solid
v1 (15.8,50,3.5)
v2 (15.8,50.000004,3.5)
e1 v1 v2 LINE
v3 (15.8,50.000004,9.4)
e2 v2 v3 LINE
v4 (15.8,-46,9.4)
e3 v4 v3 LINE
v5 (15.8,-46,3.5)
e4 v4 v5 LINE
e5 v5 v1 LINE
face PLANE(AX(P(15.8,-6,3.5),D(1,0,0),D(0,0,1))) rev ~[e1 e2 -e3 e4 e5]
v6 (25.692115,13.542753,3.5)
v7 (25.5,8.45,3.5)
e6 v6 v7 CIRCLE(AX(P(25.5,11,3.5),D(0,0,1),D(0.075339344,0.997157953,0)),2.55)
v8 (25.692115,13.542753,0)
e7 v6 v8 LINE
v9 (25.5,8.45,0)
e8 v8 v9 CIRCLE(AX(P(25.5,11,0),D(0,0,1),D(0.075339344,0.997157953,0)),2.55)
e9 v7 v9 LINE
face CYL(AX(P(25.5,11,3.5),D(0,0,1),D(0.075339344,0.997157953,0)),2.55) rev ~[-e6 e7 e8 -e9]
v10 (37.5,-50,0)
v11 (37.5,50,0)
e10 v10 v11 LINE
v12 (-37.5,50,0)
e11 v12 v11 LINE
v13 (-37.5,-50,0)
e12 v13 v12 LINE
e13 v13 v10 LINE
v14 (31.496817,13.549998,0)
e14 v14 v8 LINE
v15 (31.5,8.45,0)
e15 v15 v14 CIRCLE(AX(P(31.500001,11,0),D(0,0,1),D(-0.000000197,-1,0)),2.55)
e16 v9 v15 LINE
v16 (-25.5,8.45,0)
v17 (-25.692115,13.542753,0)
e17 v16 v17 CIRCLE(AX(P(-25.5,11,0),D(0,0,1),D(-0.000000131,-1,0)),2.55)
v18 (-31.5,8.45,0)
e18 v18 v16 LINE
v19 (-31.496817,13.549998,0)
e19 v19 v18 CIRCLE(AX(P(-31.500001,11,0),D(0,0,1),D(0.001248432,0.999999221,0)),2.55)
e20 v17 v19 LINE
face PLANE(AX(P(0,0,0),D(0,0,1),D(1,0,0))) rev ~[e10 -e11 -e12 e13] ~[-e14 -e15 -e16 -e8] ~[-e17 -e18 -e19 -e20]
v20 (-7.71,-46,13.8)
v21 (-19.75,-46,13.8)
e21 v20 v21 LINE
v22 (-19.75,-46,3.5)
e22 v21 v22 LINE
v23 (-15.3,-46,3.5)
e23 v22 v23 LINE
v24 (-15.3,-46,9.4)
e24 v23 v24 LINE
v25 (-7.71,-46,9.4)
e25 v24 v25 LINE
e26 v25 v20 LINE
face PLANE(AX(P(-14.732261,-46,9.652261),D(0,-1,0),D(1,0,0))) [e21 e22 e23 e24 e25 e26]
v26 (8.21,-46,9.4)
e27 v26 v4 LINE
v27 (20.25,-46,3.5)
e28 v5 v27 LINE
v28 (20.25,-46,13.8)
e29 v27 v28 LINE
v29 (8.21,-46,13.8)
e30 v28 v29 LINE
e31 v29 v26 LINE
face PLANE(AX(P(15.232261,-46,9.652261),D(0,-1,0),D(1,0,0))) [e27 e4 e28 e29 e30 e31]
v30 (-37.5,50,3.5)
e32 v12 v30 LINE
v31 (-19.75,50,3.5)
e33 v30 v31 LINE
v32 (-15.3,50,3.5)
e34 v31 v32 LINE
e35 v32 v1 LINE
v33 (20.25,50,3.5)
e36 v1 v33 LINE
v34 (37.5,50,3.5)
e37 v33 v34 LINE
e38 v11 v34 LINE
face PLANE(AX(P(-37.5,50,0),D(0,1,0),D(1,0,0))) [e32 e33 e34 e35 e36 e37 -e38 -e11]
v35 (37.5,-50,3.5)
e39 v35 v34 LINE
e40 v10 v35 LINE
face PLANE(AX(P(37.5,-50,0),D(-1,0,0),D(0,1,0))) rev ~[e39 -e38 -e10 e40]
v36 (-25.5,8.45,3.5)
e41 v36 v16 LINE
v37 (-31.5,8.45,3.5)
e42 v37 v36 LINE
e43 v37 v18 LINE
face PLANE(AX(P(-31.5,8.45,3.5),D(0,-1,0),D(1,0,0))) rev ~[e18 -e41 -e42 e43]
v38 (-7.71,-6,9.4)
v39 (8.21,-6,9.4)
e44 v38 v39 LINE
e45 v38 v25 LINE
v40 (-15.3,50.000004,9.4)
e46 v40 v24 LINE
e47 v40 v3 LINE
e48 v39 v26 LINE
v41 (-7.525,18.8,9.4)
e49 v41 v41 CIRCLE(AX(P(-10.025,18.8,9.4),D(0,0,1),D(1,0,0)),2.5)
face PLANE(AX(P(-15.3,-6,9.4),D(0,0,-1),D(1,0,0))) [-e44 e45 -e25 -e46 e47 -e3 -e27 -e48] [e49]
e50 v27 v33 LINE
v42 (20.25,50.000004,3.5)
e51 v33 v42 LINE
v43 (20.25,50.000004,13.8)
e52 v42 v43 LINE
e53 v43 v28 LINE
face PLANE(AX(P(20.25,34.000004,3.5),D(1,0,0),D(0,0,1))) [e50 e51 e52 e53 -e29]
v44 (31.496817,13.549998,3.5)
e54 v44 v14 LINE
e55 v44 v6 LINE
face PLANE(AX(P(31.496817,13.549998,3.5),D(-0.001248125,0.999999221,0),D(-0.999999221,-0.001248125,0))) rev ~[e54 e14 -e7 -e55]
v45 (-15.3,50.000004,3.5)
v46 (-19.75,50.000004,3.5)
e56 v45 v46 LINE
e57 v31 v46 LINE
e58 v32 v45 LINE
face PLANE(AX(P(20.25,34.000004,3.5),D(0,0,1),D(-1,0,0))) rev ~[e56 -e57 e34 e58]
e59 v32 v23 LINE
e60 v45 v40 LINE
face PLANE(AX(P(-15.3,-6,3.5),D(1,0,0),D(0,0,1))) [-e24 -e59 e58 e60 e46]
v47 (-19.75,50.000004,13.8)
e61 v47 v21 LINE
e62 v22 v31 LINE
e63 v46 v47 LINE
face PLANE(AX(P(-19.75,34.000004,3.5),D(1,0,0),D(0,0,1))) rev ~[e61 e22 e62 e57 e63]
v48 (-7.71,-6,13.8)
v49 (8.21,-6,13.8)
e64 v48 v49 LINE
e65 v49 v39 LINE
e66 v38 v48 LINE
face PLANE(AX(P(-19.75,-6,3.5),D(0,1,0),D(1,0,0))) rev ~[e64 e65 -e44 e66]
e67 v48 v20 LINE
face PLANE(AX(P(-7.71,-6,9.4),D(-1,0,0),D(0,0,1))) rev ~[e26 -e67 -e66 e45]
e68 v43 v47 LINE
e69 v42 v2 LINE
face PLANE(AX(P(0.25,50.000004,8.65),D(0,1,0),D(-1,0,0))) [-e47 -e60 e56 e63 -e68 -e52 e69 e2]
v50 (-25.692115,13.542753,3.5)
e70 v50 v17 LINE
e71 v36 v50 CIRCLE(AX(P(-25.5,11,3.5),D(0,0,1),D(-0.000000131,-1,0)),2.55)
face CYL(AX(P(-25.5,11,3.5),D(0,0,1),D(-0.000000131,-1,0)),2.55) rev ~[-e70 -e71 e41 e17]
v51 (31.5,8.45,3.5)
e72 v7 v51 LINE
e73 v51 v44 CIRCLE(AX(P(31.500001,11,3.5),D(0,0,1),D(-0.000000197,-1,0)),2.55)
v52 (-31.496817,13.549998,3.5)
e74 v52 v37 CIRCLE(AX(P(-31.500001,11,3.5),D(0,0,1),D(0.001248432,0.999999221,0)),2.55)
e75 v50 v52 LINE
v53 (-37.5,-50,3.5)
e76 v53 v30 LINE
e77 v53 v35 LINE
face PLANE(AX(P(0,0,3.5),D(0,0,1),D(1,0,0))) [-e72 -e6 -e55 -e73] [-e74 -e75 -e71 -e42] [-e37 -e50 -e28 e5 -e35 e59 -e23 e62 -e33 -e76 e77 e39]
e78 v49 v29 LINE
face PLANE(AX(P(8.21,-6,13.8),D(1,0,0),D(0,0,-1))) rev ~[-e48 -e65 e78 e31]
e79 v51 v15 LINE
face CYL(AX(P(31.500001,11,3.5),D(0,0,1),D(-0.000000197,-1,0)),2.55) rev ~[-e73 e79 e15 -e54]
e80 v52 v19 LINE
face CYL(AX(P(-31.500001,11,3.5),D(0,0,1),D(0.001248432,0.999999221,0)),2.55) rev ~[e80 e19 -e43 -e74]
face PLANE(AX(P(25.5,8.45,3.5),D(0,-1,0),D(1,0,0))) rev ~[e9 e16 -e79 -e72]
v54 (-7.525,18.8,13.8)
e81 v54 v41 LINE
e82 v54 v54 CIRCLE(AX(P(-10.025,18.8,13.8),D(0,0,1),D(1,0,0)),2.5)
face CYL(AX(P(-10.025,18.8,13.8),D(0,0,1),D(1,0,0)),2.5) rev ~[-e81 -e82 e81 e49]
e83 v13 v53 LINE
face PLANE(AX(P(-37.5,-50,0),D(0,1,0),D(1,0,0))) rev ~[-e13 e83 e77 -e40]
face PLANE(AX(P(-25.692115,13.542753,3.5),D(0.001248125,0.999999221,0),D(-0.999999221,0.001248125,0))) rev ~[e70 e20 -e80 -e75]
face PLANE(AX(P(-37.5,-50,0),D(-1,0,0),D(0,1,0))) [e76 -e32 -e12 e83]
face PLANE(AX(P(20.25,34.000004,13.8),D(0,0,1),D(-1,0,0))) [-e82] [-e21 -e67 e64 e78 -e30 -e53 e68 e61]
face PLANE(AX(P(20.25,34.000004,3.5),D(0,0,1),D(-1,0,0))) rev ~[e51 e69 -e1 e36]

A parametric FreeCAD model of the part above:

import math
import FreeCAD as App
import Part
import Sketcher

doc = App.newDocument("Part")
body = doc.addObject("PartDesign::Body", "Body")

sketch1 = body.newObject("Sketcher::SketchObject", "Sketch")
sketch1.AttachmentSupport = (doc.getObject("XY_Plane"), [""])
sketch1.MapMode = "FlatFace"
sketch1.addGeometry([
    Part.LineSegment(App.Vector(-38, 50, 0), App.Vector(-38, -50, 0)),
    Part.LineSegment(App.Vector(-38, -50, 0), App.Vector(38, -50, 0)),
    Part.LineSegment(App.Vector(38, -50, 0), App.Vector(38, 50, 0)),
    Part.LineSegment(App.Vector(38, 50, 0), App.Vector(-38, 50, 0)),
], False)
sketch1.addConstraint([
    Sketcher.Constraint("Coincident", 0, 2, 1, 1),
    Sketcher.Constraint("Coincident", 1, 2, 2, 1),
    Sketcher.Constraint("Coincident", 2, 2, 3, 1),
    Sketcher.Constraint("Coincident", 3, 2, 0, 1),
    Sketcher.Constraint("Vertical", 0),
    Sketcher.Constraint("Horizontal", 1),
    Sketcher.Constraint("Vertical", 2),
    Sketcher.Constraint("Horizontal", 3),
    Sketcher.Constraint("Symmetric", 0, 2, 2, 2, -1, 1),
    Sketcher.Constraint("DistanceX", 1, 1, 1, 2, 75.0),
    Sketcher.Constraint("DistanceY", 0, 2, 0, 1, 100.0),
])
pad1 = body.newObject("PartDesign::Pad", "Pad")
pad1.Profile = sketch1
pad1.Length = 3.5

sketch2 = body.newObject("Sketcher::SketchObject", "Sketch001")
sketch2.AttachmentSupport = (doc.getObject("XY_Plane"), [""])
sketch2.MapMode = "FlatFace"
sketch2.AttachmentOffset = App.Placement(App.Vector(0, 0, 3.5), App.Rotation())
sketch2.addGeometry([
    Part.LineSegment(App.Vector(25.5, 8.4, 0), App.Vector(31.5, 8.4, 0)),
    Part.ArcOfCircle(Part.Circle(App.Vector(31.5, 11, 0), App.Vector(0, 0, 1), 2.5), math.radians(-90), math.radians(90)),
    Part.LineSegment(App.Vector(31.5, 13.5, 0), App.Vector(25.7, 13.5, 0)),
    Part.ArcOfCircle(Part.Circle(App.Vector(25.5, 11, 0), App.Vector(0, 0, 1), 2.6), math.radians(86), math.radians(270)),
    Part.ArcOfCircle(Part.Circle(App.Vector(-25.5, 11, 0), App.Vector(0, 0, 1), 2.6), math.radians(-90), math.radians(94)),
    Part.LineSegment(App.Vector(-25.7, 13.5, 0), App.Vector(-31.5, 13.5, 0)),
    Part.ArcOfCircle(Part.Circle(App.Vector(-31.5, 11, 0), App.Vector(0, 0, 1), 2.5), math.radians(90), math.radians(270)),
    Part.LineSegment(App.Vector(-31.5, 8.4, 0), App.Vector(-25.5, 8.4, 0)),
], False)
sketch2.addConstraint([
    Sketcher.Constraint("Tangent", 0, 2, 1, 1),
    Sketcher.Constraint("Tangent", 1, 2, 2, 1),
    Sketcher.Constraint("Coincident", 2, 2, 3, 1),
    Sketcher.Constraint("Tangent", 3, 2, 0, 1),
    Sketcher.Constraint("Coincident", 4, 2, 5, 1),
    Sketcher.Constraint("Tangent", 5, 2, 6, 1),
    Sketcher.Constraint("Tangent", 6, 2, 7, 1),
    Sketcher.Constraint("Tangent", 7, 2, 4, 1),
    Sketcher.Constraint("Horizontal", 0),
    Sketcher.Constraint("Horizontal", 7),
    Sketcher.Constraint("Equal", 1, 3),
    Sketcher.Constraint("Equal", 3, 4),
    Sketcher.Constraint("Equal", 4, 6),
    Sketcher.Constraint("Symmetric", 3, 3, 4, 3, -2),
    Sketcher.Constraint("Horizontal", 2, 2, 4, 2),
    Sketcher.Constraint("Equal", 0, 7),
    Sketcher.Constraint("DistanceX", 0, 1, 0, 2, 6.0),
    Sketcher.Constraint("Radius", 1, 2.55),
    Sketcher.Constraint("DistanceY", -1, 1, 1, 3, 11.0),
    Sketcher.Constraint("DistanceX", 4, 3, 3, 3, 50.999999),
    Sketcher.Constraint("DistanceX", 2, 2, 1, 2, 5.804702),
])
pocket1 = body.newObject("PartDesign::Pocket", "Pocket")
pocket1.Profile = sketch2
pocket1.Type = "ThroughAll"

sketch3 = body.newObject("Sketcher::SketchObject", "Sketch002")
sketch3.AttachmentSupport = (doc.getObject("XY_Plane"), [""])
sketch3.MapMode = "FlatFace"
sketch3.AttachmentOffset = App.Placement(App.Vector(0, 0, 3.5), App.Rotation())
sketch3.addGeometry([
    Part.LineSegment(App.Vector(-20, 34, 0), App.Vector(-20, -6, 0)),
    Part.LineSegment(App.Vector(-20, -6, 0), App.Vector(20, -6, 0)),
    Part.LineSegment(App.Vector(20, -6, 0), App.Vector(20, 34, 0)),
    Part.LineSegment(App.Vector(20, 34, 0), App.Vector(-20, 34, 0)),
], False)
sketch3.addConstraint([
    Sketcher.Constraint("Coincident", 0, 2, 1, 1),
    Sketcher.Constraint("Coincident", 1, 2, 2, 1),
    Sketcher.Constraint("Coincident", 2, 2, 3, 1),
    Sketcher.Constraint("Coincident", 3, 2, 0, 1),
    Sketcher.Constraint("Vertical", 0),
    Sketcher.Constraint("Horizontal", 1),
    Sketcher.Constraint("Vertical", 2),
    Sketcher.Constraint("Horizontal", 3),
    Sketcher.Constraint("DistanceX", 1, 1, 1, 2, 40.0),
    Sketcher.Constraint("DistanceY", 0, 2, -1, 1, 6.0),
    Sketcher.Constraint("DistanceX", 0, 2, -1, 1, 19.75),
    Sketcher.Constraint("DistanceY", 0, 2, 0, 1, 40.000004),
])
pad2 = body.newObject("PartDesign::Pad", "Pad001")
pad2.Profile = sketch3
pad2.Length = 10.3

sketch4 = body.newObject("Sketcher::SketchObject", "Sketch003")
sketch4.AttachmentSupport = (doc.getObject("XZ_Plane"), [""])
sketch4.MapMode = "FlatFace"
sketch4.AttachmentOffset = App.Placement(App.Vector(0, 0, 6), App.Rotation())
sketch4.addGeometry([
    Part.LineSegment(App.Vector(-7.7, 13.8, 0), App.Vector(-19.8, 13.8, 0)),
    Part.LineSegment(App.Vector(-19.8, 13.8, 0), App.Vector(-19.8, 3.5, 0)),
    Part.LineSegment(App.Vector(-19.8, 3.5, 0), App.Vector(-15.3, 3.5, 0)),
    Part.LineSegment(App.Vector(-15.3, 3.5, 0), App.Vector(-15.3, 9.4, 0)),
    Part.LineSegment(App.Vector(-15.3, 9.4, 0), App.Vector(-7.7, 9.4, 0)),
    Part.LineSegment(App.Vector(-7.7, 9.4, 0), App.Vector(-7.7, 13.8, 0)),
    Part.LineSegment(App.Vector(20.2, 3.5, 0), App.Vector(20.2, 13.8, 0)),
    Part.LineSegment(App.Vector(20.2, 13.8, 0), App.Vector(8.2, 13.8, 0)),
    Part.LineSegment(App.Vector(8.2, 13.8, 0), App.Vector(8.2, 9.4, 0)),
    Part.LineSegment(App.Vector(8.2, 9.4, 0), App.Vector(15.8, 9.4, 0)),
    Part.LineSegment(App.Vector(15.8, 9.4, 0), App.Vector(15.8, 3.5, 0)),
    Part.LineSegment(App.Vector(15.8, 3.5, 0), App.Vector(20.2, 3.5, 0)),
], False)
sketch4.addConstraint([
    Sketcher.Constraint("Coincident", 0, 2, 1, 1),
    Sketcher.Constraint("Coincident", 1, 2, 2, 1),
    Sketcher.Constraint("Coincident", 2, 2, 3, 1),
    Sketcher.Constraint("Coincident", 3, 2, 4, 1),
    Sketcher.Constraint("Coincident", 4, 2, 5, 1),
    Sketcher.Constraint("Coincident", 5, 2, 0, 1),
    Sketcher.Constraint("Coincident", 6, 2, 7, 1),
    Sketcher.Constraint("Coincident", 7, 2, 8, 1),
    Sketcher.Constraint("Coincident", 8, 2, 9, 1),
    Sketcher.Constraint("Coincident", 9, 2, 10, 1),
    Sketcher.Constraint("Coincident", 10, 2, 11, 1),
    Sketcher.Constraint("Coincident", 11, 2, 6, 1),
    Sketcher.Constraint("Horizontal", 0),
    Sketcher.Constraint("Vertical", 1),
    Sketcher.Constraint("Horizontal", 2),
    Sketcher.Constraint("Vertical", 3),
    Sketcher.Constraint("Horizontal", 4),
    Sketcher.Constraint("Vertical", 5),
    Sketcher.Constraint("Vertical", 6),
    Sketcher.Constraint("Horizontal", 7),
    Sketcher.Constraint("Vertical", 8),
    Sketcher.Constraint("Horizontal", 9),
    Sketcher.Constraint("Vertical", 10),
    Sketcher.Constraint("Horizontal", 11),
    Sketcher.Constraint("Horizontal", 5, 2, 6, 2),
    Sketcher.Constraint("Horizontal", 4, 2, 8, 2),
    Sketcher.Constraint("Horizontal", 2, 2, 10, 2),
    Sketcher.Constraint("Equal", 0, 7),
    Sketcher.Constraint("Equal", 4, 9),
    Sketcher.Constraint("DistanceY", 1, 2, 1, 1, 10.3),
    Sketcher.Constraint("DistanceY", 3, 1, 3, 2, 5.9),
    Sketcher.Constraint("DistanceX", 0, 2, 6, 2, 40.0),
    Sketcher.Constraint("DistanceX", 0, 2, 0, 1, 12.04),
    Sketcher.Constraint("DistanceX", 2, 1, 2, 2, 4.45),
    Sketcher.Constraint("DistanceY", -1, 1, 0, 2, 13.8),
    Sketcher.Constraint("DistanceX", 2, 2, -1, 1, 15.3),
])
pad3 = body.newObject("PartDesign::Pad", "Pad002")
pad3.Profile = sketch4
pad3.Length = 40

sketch5 = body.newObject("Sketcher::SketchObject", "Sketch004")
sketch5.AttachmentSupport = (doc.getObject("XY_Plane"), [""])
sketch5.MapMode = "FlatFace"
sketch5.AttachmentOffset = App.Placement(App.Vector(0, 0, 13.8), App.Rotation())
sketch5.addGeometry(Part.Circle(App.Vector(-10, 18.8, 0), App.Vector(0, 0, 1), 2.5), False)
sketch5.addConstraint([
    Sketcher.Constraint("Diameter", 0, 5.0),
    Sketcher.Constraint("DistanceY", -1, 1, 0, 3, 18.8),
    Sketcher.Constraint("DistanceX", 0, 3, -1, 1, 10.025),
])
pocket2 = body.newObject("PartDesign::Pocket", "Pocket001")
pocket2.Profile = sketch5
pocket2.Length = 5.5

sketch6 = body.newObject("Sketcher::SketchObject", "Sketch005")
sketch6.AttachmentSupport = (doc.getObject("XZ_Plane"), [""])
sketch6.MapMode = "FlatFace"
sketch6.AttachmentOffset = App.Placement(App.Vector(0, 0, -34.000004), App.Rotation())
sketch6.addGeometry([
    Part.LineSegment(App.Vector(20, 14, 0), App.Vector(20, 4, 0)),
    Part.LineSegment(App.Vector(20, 4, 0), App.Vector(-20, 4, 0)),
    Part.LineSegment(App.Vector(-20, 4, 0), App.Vector(-20, 14, 0)),
    Part.LineSegment(App.Vector(-20, 14, 0), App.Vector(20, 14, 0)),
], False)
sketch6.addConstraint([
    Sketcher.Constraint("Coincident", 0, 2, 1, 1),
    Sketcher.Constraint("Coincident", 1, 2, 2, 1),
    Sketcher.Constraint("Coincident", 2, 2, 3, 1),
    Sketcher.Constraint("Coincident", 3, 2, 0, 1),
    Sketcher.Constraint("Vertical", 0),
    Sketcher.Constraint("Horizontal", 1),
    Sketcher.Constraint("Vertical", 2),
    Sketcher.Constraint("Horizontal", 3),
    Sketcher.Constraint("DistanceX", 1, 2, 1, 1, 40.0),
    Sketcher.Constraint("DistanceY", 0, 2, 0, 1, 10.3),
    Sketcher.Constraint("DistanceY", -1, 1, 0, 2, 3.5),
    Sketcher.Constraint("DistanceX", -1, 1, 0, 2, 20.25),
])
pad4 = body.newObject("PartDesign::Pad", "Pad003")
pad4.Profile = sketch6
pad4.Length = 16
pad4.Reversed = True

sketch7 = body.newObject("Sketcher::SketchObject", "Sketch006")
sketch7.AttachmentSupport = (doc.getObject("XZ_Plane"), [""])
sketch7.MapMode = "FlatFace"
sketch7.AttachmentOffset = App.Placement(App.Vector(0, 0, 6), App.Rotation())
sketch7.addGeometry([
    Part.LineSegment(App.Vector(-15, 9, 0), App.Vector(-15, 4, 0)),
    Part.LineSegment(App.Vector(-15, 4, 0), App.Vector(16, 4, 0)),
    Part.LineSegment(App.Vector(16, 4, 0), App.Vector(16, 9, 0)),
    Part.LineSegment(App.Vector(16, 9, 0), App.Vector(-15, 9, 0)),
], False)
sketch7.addConstraint([
    Sketcher.Constraint("Coincident", 0, 2, 1, 1),
    Sketcher.Constraint("Coincident", 1, 2, 2, 1),
    Sketcher.Constraint("Coincident", 2, 2, 3, 1),
    Sketcher.Constraint("Coincident", 3, 2, 0, 1),
    Sketcher.Constraint("Vertical", 0),
    Sketcher.Constraint("Horizontal", 1),
    Sketcher.Constraint("Vertical", 2),
    Sketcher.Constraint("Horizontal", 3),
    Sketcher.Constraint("DistanceX", 1, 1, 1, 2, 31.1),
    Sketcher.Constraint("DistanceY", 0, 2, 0, 1, 5.9),
    Sketcher.Constraint("DistanceX", 0, 2, -1, 1, 15.3),
    Sketcher.Constraint("DistanceY", -1, 1, 0, 2, 3.5),
])
pocket3 = body.newObject("PartDesign::Pocket", "Pocket002")
pocket3.Profile = sketch7
pocket3.Type = "ThroughAll"

doc.recompute()
